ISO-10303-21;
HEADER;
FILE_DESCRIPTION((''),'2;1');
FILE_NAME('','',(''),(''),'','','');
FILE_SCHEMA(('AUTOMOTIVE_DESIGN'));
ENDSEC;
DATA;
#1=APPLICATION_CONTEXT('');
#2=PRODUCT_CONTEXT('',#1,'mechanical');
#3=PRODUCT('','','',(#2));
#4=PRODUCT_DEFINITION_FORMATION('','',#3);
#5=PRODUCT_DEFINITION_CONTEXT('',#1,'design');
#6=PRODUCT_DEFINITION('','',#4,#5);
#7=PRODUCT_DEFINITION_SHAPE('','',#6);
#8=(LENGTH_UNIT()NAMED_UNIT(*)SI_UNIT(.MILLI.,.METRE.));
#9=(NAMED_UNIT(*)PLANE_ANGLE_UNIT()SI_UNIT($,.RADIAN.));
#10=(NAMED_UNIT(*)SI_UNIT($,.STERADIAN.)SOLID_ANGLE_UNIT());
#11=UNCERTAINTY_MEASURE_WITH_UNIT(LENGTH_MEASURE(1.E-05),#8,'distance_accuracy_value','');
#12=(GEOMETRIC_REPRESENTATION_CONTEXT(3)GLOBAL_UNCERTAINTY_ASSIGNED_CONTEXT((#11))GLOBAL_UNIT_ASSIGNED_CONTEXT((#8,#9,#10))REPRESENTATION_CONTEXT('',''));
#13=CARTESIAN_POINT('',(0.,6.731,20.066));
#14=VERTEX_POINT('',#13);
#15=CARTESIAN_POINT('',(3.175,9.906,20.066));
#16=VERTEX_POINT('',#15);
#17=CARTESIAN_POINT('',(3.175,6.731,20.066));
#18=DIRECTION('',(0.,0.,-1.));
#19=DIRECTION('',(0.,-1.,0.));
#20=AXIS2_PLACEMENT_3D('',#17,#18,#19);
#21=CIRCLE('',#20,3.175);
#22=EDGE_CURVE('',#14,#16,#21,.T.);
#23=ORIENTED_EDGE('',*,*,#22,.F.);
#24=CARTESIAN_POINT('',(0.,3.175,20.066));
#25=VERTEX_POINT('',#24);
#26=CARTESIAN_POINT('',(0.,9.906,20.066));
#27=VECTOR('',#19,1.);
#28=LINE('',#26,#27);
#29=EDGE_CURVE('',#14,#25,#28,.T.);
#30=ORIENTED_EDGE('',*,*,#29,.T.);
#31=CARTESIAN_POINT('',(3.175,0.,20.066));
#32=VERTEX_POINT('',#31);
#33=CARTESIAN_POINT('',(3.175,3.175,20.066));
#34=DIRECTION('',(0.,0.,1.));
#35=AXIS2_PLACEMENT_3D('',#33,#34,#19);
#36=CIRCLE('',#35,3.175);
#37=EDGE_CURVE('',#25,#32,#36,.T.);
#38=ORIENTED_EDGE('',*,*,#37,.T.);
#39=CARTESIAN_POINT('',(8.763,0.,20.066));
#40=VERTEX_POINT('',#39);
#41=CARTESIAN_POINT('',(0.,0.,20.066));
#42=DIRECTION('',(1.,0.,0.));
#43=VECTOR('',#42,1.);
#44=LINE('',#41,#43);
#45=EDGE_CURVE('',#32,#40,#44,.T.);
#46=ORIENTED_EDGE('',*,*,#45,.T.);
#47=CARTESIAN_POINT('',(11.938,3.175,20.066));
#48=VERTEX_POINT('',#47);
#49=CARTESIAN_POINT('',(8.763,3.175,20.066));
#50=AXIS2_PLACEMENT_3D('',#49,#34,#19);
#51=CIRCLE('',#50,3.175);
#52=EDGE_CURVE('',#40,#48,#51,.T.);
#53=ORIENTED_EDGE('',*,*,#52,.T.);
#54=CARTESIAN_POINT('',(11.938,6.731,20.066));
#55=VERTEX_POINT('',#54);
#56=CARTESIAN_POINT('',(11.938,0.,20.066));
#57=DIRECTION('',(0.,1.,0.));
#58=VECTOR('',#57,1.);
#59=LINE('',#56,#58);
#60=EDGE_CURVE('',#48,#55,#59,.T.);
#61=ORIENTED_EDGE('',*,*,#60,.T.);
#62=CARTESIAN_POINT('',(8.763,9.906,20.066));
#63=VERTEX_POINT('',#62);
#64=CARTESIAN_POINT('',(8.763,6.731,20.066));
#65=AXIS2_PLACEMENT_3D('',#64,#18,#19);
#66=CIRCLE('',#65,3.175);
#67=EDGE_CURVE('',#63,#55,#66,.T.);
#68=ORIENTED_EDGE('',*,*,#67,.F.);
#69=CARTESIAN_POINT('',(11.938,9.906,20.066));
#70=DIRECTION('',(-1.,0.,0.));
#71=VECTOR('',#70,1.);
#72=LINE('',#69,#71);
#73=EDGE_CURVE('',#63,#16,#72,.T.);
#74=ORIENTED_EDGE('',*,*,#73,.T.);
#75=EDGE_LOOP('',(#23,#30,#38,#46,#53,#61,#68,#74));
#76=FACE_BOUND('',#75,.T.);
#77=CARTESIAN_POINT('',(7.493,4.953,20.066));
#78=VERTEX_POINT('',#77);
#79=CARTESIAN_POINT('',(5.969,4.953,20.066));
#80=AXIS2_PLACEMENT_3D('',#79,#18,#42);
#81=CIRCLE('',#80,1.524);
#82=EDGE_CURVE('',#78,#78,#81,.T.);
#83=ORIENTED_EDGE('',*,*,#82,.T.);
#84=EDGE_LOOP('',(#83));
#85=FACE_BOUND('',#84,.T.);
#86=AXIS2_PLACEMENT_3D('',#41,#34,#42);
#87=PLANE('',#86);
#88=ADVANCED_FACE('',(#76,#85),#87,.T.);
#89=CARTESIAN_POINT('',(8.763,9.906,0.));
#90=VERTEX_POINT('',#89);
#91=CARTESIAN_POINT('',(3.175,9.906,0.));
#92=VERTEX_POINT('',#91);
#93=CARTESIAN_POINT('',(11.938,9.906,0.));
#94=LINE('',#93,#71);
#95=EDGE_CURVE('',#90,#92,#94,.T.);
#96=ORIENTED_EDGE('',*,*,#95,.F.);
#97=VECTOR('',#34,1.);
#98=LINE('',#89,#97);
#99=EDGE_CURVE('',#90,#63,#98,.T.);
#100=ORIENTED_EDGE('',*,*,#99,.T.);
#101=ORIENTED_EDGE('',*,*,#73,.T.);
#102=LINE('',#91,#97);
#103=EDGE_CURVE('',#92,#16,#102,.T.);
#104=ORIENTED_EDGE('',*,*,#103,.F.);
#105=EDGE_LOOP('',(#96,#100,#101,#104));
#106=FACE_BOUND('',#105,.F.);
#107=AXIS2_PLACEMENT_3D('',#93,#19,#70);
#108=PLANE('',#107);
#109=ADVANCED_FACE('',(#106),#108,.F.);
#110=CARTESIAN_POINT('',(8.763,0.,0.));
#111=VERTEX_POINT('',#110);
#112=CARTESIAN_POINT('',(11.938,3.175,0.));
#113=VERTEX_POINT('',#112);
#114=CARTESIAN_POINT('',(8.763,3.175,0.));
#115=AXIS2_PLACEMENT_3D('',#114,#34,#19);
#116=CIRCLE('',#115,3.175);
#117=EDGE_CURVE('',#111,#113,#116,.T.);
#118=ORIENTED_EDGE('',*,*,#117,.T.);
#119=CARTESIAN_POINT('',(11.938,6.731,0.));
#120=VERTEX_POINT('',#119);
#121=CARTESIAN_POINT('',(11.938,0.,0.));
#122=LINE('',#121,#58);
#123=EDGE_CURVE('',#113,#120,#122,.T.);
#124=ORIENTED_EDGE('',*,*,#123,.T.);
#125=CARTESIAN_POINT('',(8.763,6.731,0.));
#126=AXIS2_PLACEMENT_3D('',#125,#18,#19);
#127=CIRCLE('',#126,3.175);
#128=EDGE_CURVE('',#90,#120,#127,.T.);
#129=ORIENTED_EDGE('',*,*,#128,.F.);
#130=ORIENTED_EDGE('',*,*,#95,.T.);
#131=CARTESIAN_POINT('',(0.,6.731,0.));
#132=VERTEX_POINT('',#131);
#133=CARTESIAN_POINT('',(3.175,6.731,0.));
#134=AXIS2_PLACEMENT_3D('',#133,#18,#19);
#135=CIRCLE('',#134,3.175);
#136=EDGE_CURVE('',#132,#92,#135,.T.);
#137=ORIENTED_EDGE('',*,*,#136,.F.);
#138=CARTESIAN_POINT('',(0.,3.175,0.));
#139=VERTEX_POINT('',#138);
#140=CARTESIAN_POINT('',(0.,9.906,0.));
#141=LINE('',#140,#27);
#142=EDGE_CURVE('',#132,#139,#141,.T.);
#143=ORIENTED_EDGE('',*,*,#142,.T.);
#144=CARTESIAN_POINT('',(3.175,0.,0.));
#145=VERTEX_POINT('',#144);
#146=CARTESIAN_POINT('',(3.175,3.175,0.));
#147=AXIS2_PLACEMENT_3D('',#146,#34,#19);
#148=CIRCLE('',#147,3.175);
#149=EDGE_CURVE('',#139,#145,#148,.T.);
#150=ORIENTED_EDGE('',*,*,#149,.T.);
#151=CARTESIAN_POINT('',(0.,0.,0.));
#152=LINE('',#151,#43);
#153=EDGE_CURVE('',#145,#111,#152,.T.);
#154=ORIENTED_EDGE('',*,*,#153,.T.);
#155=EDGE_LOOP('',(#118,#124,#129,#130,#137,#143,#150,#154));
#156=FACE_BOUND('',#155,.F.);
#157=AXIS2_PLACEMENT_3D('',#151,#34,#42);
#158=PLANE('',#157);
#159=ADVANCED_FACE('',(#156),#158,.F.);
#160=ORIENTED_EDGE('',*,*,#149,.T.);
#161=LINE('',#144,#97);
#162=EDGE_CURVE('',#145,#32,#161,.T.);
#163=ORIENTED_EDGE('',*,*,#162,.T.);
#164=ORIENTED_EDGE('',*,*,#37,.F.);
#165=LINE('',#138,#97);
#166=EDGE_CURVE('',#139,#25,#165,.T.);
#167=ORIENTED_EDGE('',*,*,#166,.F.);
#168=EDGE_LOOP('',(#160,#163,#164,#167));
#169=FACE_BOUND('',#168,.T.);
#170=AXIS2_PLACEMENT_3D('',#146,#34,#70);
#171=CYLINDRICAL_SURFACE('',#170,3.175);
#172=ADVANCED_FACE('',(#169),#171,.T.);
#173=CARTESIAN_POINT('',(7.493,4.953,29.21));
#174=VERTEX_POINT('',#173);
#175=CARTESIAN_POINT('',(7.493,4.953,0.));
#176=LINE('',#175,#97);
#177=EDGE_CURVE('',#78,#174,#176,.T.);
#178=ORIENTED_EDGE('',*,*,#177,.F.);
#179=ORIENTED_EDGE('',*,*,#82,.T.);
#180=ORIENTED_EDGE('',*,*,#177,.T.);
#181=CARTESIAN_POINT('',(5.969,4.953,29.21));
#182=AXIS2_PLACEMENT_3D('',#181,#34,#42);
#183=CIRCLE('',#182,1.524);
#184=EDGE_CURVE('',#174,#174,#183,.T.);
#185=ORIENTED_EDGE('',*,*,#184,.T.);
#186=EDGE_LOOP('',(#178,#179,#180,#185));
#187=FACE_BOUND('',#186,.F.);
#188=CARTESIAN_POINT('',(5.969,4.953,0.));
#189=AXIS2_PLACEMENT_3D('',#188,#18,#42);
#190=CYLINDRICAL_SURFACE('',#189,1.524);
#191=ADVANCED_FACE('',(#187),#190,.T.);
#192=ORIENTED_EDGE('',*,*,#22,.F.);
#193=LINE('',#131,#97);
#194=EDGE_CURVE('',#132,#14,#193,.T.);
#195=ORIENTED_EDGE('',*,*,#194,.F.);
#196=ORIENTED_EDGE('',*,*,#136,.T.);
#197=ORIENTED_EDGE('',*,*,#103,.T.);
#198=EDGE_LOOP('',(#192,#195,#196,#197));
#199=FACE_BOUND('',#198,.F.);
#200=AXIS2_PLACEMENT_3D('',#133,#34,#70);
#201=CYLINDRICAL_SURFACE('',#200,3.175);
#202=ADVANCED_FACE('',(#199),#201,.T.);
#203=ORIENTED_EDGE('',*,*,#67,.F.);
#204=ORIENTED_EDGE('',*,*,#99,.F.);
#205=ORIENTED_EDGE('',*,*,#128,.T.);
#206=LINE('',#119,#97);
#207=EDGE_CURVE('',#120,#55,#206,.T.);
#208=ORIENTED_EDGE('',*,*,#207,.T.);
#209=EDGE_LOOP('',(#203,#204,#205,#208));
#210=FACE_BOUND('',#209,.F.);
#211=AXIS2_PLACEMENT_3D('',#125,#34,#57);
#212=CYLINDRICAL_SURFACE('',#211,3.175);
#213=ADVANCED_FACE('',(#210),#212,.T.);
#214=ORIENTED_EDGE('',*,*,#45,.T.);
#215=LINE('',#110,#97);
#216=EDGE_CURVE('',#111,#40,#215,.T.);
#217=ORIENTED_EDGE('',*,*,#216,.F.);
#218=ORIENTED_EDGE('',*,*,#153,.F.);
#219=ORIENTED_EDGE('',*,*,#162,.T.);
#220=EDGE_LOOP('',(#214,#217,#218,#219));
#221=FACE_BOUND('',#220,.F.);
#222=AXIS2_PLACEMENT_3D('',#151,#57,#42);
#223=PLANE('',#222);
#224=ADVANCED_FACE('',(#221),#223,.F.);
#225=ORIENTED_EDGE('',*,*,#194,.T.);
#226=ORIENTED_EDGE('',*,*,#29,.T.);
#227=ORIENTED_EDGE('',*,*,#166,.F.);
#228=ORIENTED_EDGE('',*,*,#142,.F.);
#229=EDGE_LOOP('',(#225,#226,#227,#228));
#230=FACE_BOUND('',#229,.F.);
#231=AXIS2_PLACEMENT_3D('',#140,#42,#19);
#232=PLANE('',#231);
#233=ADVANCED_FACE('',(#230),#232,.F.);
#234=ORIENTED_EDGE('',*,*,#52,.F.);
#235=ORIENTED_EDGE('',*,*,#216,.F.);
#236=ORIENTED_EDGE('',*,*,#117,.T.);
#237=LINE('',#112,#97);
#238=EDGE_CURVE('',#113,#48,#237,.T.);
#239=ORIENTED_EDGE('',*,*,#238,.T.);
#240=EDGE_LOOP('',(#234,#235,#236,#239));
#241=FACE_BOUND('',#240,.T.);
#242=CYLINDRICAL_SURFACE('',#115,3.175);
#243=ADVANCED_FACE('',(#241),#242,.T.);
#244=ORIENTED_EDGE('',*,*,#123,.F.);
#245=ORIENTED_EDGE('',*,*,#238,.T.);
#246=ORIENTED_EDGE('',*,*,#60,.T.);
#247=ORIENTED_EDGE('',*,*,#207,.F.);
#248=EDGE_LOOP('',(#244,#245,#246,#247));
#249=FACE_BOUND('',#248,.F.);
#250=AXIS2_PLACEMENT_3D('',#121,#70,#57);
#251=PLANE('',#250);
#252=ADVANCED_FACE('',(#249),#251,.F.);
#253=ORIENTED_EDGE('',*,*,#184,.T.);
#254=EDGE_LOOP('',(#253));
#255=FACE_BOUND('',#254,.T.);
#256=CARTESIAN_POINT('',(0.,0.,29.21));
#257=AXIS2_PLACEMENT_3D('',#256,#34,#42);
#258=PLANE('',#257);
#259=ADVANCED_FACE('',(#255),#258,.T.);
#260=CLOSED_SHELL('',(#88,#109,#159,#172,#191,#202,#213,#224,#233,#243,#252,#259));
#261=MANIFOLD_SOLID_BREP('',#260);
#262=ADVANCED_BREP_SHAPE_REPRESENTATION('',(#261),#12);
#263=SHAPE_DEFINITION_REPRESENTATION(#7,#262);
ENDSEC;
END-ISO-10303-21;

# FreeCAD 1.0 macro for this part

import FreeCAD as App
import Part
import Sketcher

V = App.Vector
Q = App.Units.Quantity


def edges_at(feature, points):
    """Names of the edges that pass closest to the given points."""
    edges = feature.Shape.Edges
    near = lambda p: min(range(len(edges)), key=lambda i: edges[i].distToShape(Part.Vertex(*p))[0])
    return sorted({f"Edge{near(p) + 1}" for p in points})


def add_polygon(sketch, points):
    """Adds a closed chain of lines whose ends are joined by coincident constraints."""
    first, n = sketch.GeometryCount, len(points)
    for a, b in zip(points, points[1:] + points[:1]):
        sketch.addGeometry(Part.LineSegment(App.Vector(*a, 0), App.Vector(*b, 0)), False)
    for i in range(n):
        sketch.addConstraint(Sketcher.Constraint("Coincident", first + i, 2, first + (i + 1) % n, 1))

doc = App.newDocument("Part")
body = doc.addObject("PartDesign::Body", "Body")

sketch1 = body.newObject("Sketcher::SketchObject", "Sketch")
sketch1.AttachmentSupport = (doc.getObject("XY_Plane"), [""])
sketch1.MapMode = "FlatFace"
add_polygon(sketch1, [(0, 10), (0, 0), (12, 0), (12, 10)])
sketch1.addConstraint(Sketcher.Constraint("Vertical", 0))
sketch1.addConstraint(Sketcher.Constraint("Horizontal", 1))
sketch1.addConstraint(Sketcher.Constraint("Vertical", 2))
sketch1.addConstraint(Sketcher.Constraint("Horizontal", 3))
sketch1.addConstraint(Sketcher.Constraint("Coincident", 0, 2, -1, 1))
sketch1.addConstraint(Sketcher.Constraint("DistanceX", 1, 1, 1, 2, Q("0.47 in")))
sketch1.addConstraint(Sketcher.Constraint("DistanceY", 0, 2, 0, 1, Q("0.39 in")))
pad1 = body.newObject("PartDesign::Pad", "Pad")
pad1.Profile = sketch1
pad1.Length = Q("0.79 in")

sketch2 = body.newObject("Sketcher::SketchObject", "Sketch001")
sketch2.AttachmentSupport = (doc.getObject("XY_Plane"), [""])
sketch2.MapMode = "FlatFace"
sketch2.addGeometry(Part.Circle(V(6, 5, 0), V(0, 0, 1), 1.5), False)
sketch2.addConstraint(Sketcher.Constraint("Diameter", 0, Q("0.12 in")))
sketch2.addConstraint(Sketcher.Constraint("DistanceX", -1, 1, 0, 3, Q("0.235 in")))
sketch2.addConstraint(Sketcher.Constraint("DistanceY", -1, 1, 0, 3, Q("0.195 in")))
pad2 = body.newObject("PartDesign::Pad", "Pad001")
pad2.Profile = sketch2
pad2.Length = Q("1.15 in")
doc.recompute()

fillet = body.newObject("PartDesign::Fillet", "Fillet")
fillet.Base = (pad2, edges_at(pad2, [
    (11.938, 9.906, 10.033),
    (11.938, 0, 10.033),
    (0, 9.906, 10.033),
    (0, 0, 10.033),
]))
fillet.Radius = Q("0.125 in")

doc.recompute()
